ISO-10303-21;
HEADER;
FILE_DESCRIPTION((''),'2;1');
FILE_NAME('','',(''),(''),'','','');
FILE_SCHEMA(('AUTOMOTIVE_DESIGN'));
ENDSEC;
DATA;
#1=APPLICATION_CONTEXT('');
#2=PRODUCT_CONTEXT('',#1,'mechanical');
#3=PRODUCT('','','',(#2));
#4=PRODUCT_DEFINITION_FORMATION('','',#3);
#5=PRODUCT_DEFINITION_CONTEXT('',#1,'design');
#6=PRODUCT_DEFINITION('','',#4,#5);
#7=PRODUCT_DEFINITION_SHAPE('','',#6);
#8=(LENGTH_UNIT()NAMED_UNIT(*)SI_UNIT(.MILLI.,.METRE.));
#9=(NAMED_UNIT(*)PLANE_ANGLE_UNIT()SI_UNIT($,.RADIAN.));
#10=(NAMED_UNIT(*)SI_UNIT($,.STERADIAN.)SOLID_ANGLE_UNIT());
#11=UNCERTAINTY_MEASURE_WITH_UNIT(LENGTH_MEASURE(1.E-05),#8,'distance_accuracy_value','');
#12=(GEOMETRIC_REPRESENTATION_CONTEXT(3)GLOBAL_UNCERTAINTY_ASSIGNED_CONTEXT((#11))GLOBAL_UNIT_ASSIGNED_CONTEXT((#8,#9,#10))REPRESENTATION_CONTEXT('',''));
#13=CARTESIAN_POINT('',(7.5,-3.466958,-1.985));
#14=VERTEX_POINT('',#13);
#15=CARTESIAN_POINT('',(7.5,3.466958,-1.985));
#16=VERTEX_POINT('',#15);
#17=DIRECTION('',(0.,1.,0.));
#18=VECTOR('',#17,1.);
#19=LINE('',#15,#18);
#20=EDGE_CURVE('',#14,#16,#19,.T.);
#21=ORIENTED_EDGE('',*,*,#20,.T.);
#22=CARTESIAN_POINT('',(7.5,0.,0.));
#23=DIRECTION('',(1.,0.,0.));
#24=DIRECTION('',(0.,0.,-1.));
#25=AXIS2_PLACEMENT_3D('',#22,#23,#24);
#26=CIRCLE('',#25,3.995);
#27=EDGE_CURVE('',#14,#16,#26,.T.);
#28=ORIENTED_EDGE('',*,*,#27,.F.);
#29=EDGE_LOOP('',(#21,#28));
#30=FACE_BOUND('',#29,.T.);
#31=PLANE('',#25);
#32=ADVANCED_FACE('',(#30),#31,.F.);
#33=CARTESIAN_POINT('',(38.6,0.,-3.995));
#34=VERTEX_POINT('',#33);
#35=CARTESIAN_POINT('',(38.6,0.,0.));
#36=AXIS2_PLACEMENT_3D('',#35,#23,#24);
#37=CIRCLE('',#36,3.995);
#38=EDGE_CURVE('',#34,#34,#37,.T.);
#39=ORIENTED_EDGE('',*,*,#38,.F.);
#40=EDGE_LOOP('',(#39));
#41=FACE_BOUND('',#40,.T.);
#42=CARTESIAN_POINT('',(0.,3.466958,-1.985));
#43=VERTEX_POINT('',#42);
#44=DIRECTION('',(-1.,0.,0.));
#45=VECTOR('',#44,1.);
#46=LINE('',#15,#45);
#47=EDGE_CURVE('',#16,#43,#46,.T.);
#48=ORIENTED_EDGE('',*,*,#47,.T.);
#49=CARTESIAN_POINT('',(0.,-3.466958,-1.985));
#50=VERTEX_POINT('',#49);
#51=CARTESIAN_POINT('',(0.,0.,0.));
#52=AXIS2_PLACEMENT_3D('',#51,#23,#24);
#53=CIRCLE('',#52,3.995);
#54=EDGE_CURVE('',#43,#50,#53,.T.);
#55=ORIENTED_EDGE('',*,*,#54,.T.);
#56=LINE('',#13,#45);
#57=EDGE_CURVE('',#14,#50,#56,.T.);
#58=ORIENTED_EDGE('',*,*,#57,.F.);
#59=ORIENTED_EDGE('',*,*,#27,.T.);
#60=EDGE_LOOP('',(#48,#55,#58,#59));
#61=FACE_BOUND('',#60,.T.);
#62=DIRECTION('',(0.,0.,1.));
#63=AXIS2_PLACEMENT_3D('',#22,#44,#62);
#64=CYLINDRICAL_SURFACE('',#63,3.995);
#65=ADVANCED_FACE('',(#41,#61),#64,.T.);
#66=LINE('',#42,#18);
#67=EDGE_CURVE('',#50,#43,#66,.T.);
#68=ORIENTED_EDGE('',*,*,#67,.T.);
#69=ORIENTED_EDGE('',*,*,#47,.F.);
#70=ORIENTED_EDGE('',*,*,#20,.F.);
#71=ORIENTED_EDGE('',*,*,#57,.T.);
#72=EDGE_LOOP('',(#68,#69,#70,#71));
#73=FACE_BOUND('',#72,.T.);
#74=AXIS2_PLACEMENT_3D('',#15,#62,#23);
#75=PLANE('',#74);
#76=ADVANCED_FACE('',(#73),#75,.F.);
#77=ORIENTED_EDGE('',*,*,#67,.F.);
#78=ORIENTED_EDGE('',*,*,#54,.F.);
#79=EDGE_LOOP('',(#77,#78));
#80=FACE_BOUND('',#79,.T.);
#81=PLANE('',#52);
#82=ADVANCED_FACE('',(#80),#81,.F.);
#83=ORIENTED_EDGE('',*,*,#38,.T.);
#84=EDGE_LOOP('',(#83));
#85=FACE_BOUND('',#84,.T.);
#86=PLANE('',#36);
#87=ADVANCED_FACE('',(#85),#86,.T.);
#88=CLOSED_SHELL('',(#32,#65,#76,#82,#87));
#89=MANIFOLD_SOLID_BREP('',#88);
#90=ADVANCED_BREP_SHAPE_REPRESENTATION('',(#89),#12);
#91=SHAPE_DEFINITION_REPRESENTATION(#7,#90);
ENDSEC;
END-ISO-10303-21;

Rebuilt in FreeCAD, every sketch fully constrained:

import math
import FreeCAD as App
import Part
import Sketcher

V = App.Vector
Q = App.Units.Quantity

doc = App.newDocument("Part")
body = doc.addObject("PartDesign::Body", "Body")

# Sketch on YZ plane
sketch1 = doc.addObject("Sketcher::SketchObject", "Sketch")
body.addObject(sketch1)
sketch1.AttachmentSupport = (doc.YZ_Plane, [""])
sketch1.MapMode = "FlatFace"
sketch1.addGeometry([
    Part.LineSegment(V(-3.466958, -1.985, 0), V(3.466958, -1.985, 0)),
    Part.ArcOfCircle(Part.Circle(V(0, 0, 0), V(0, 0, 1), 3.995), math.radians(-29.793208), math.radians(209.793208)),
], False)
sketch1.addConstraint([
    Sketcher.Constraint("Coincident", 0, 1, 1, 2),
    Sketcher.Constraint("Coincident", 1, 1, 0, 2),
    Sketcher.Constraint("Horizontal", 0),
    Sketcher.Constraint("Coincident", 1, 3, -1, 1),
    Sketcher.Constraint("Radius", 1, Q("3.995 mm")),
    Sketcher.Constraint("DistanceY", 0, 1, -1, 1, Q("1.985 mm")),
])
pad1 = doc.addObject("PartDesign::Pad", "Pad")
body.addObject(pad1)
pad1.Profile = sketch1
pad1.Length = 7.5

# Sketch on YZ plane
sketch2 = doc.addObject("Sketcher::SketchObject", "Sketch001")
body.addObject(sketch2)
sketch2.AttachmentSupport = (doc.YZ_Plane, [""])
sketch2.MapMode = "FlatFace"
sketch2.AttachmentOffset = App.Placement(V(0, 0, 7.5), App.Rotation())
sketch2.addGeometry(Part.Circle(V(0, 0, 0), V(0, 0, 1), 3.995), False)
sketch2.addConstraint([
    Sketcher.Constraint("Coincident", 0, 3, -1, 1),
    Sketcher.Constraint("Diameter", 0, Q("7.99 mm")),
])
pad2 = doc.addObject("PartDesign::Pad", "Pad001")
body.addObject(pad2)
pad2.Profile = sketch2
pad2.Length = 31.1

doc.recompute()
